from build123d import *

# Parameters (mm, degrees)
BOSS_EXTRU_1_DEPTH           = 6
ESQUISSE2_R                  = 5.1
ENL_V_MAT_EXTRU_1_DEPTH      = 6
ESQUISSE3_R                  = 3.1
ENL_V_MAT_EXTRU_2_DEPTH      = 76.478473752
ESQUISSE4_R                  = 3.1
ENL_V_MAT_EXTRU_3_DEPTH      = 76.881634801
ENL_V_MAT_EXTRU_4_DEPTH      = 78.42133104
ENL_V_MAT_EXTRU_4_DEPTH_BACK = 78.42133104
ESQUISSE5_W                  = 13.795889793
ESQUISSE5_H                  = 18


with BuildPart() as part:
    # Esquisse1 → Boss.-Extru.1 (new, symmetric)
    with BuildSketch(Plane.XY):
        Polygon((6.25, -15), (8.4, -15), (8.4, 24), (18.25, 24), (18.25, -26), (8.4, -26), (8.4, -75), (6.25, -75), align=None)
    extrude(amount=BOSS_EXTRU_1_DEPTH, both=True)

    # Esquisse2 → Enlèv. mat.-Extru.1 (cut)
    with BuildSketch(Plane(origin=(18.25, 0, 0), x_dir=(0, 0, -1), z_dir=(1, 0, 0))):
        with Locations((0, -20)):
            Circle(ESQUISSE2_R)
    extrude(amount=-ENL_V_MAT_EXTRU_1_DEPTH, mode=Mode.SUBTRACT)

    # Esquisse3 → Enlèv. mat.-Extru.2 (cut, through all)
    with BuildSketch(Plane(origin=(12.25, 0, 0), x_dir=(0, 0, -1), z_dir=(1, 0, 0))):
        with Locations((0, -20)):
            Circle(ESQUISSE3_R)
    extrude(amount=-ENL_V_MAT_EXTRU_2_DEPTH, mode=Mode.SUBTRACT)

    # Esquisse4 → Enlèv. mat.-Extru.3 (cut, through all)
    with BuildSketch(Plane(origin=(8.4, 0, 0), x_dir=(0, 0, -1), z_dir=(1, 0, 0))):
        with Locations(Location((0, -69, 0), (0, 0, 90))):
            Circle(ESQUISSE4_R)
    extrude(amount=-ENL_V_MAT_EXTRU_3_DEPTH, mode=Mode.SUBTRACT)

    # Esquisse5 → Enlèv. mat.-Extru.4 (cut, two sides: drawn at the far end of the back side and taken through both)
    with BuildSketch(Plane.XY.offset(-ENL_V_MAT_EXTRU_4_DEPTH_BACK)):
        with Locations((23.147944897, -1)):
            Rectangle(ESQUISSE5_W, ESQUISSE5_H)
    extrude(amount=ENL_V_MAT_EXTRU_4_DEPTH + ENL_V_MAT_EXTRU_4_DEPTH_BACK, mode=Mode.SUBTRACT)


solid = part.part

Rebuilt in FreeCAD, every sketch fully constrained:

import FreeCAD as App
import Part
import Sketcher
from FreeCAD import Vector


def add_polygon(sketch, points):
    """Adds a closed chain of lines whose ends are joined by coincident constraints."""
    first, n = sketch.GeometryCount, len(points)
    for a, b in zip(points, points[1:] + points[:1]):
        sketch.addGeometry(Part.LineSegment(App.Vector(*a, 0), App.Vector(*b, 0)), False)
    for i in range(n):
        sketch.addConstraint(Sketcher.Constraint("Coincident", first + i, 2, first + (i + 1) % n, 1))

doc = App.newDocument("Part")
body = doc.addObject("PartDesign::Body", "Body")

sketch1 = body.newObject("Sketcher::SketchObject", "Sketch")
sketch1.AttachmentSupport = (doc.getObject("XY_Plane"), [""])
sketch1.MapMode = "FlatFace"
add_polygon(sketch1, [(8.4, -15), (6.2, -15), (6.2, -75), (8.4, -75), (8.4, -26), (18.2, -26), (18.2, 24), (8.4, 24)])
sketch1.addConstraint([
    Sketcher.Constraint("Horizontal", 0),
    Sketcher.Constraint("Vertical", 1),
    Sketcher.Constraint("Horizontal", 2),
    Sketcher.Constraint("Vertical", 3),
    Sketcher.Constraint("Horizontal", 4),
    Sketcher.Constraint("Vertical", 5),
    Sketcher.Constraint("Horizontal", 6),
    Sketcher.Constraint("Vertical", 7),
    Sketcher.Constraint("Vertical", 3, 2, 6, 2),
    Sketcher.Constraint("DistanceY", 1, 2, 1, 1, 60.0),
    Sketcher.Constraint("DistanceY", 3, 1, 3, 2, 49.0),
    Sketcher.Constraint("DistanceY", 5, 1, 5, 2, 50.0),
    Sketcher.Constraint("DistanceY", 0, 2, -1, 1, 15.0),
    Sketcher.Constraint("DistanceX", 0, 2, 4, 2, 12.0),
    Sketcher.Constraint("DistanceX", 0, 2, 0, 1, 2.15),
    Sketcher.Constraint("DistanceX", -1, 1, 2, 2, 8.4),
])
pad1 = body.newObject("PartDesign::Pad", "Pad")
pad1.Profile = sketch1
pad1.Length = 12
pad1.Midplane = True

sketch2 = body.newObject("Sketcher::SketchObject", "Sketch001")
sketch2.AttachmentSupport = (doc.getObject("YZ_Plane"), [""])
sketch2.MapMode = "FlatFace"
sketch2.AttachmentOffset = App.Placement(Vector(0, 0, 18.25), App.Rotation())
sketch2.addGeometry(Part.Circle(Vector(-20, 0, 0), Vector(0, 0, 1), 5), False)
sketch2.addConstraint([
    Sketcher.Constraint("PointOnObject", 0, 3, -1),
    Sketcher.Constraint("Diameter", 0, 10.2),
    Sketcher.Constraint("DistanceX", 0, 3, -1, 1, 20.0),
])
pocket1 = body.newObject("PartDesign::Pocket", "Pocket")
pocket1.Profile = sketch2
pocket1.Length = 6

sketch3 = body.newObject("Sketcher::SketchObject", "Sketch002")
sketch3.AttachmentSupport = (doc.getObject("YZ_Plane"), [""])
sketch3.MapMode = "FlatFace"
sketch3.AttachmentOffset = App.Placement(Vector(0, 0, 12.25), App.Rotation())
sketch3.addGeometry(Part.Circle(Vector(-20, 0, 0), Vector(0, 0, 1), 3.1), False)
sketch3.addConstraint([
    Sketcher.Constraint("PointOnObject", 0, 3, -1),
    Sketcher.Constraint("Diameter", 0, 6.2),
    Sketcher.Constraint("DistanceX", 0, 3, -1, 1, 20.0),
])
pocket2 = body.newObject("PartDesign::Pocket", "Pocket001")
pocket2.Profile = sketch3
pocket2.Type = "ThroughAll"

sketch4 = body.newObject("Sketcher::SketchObject", "Sketch003")
sketch4.AttachmentSupport = (doc.getObject("YZ_Plane"), [""])
sketch4.MapMode = "FlatFace"
sketch4.AttachmentOffset = App.Placement(Vector(0, 0, 8.4), App.Rotation())
sketch4.addGeometry(Part.Circle(Vector(-69, 0, 0), Vector(0, 0, 1), 3.1), False)
sketch4.addConstraint([
    Sketcher.Constraint("PointOnObject", 0, 3, -1),
    Sketcher.Constraint("Diameter", 0, 6.2),
    Sketcher.Constraint("DistanceX", 0, 3, -1, 1, 69.0),
])
pocket3 = body.newObject("PartDesign::Pocket", "Pocket002")
pocket3.Profile = sketch4
pocket3.Type = "ThroughAll"

sketch5 = body.newObject("Sketcher::SketchObject", "Sketch004")
sketch5.AttachmentSupport = (doc.getObject("XY_Plane"), [""])
sketch5.MapMode = "FlatFace"
add_polygon(sketch5, [(16, 8), (16, -10), (30, -10), (30, 8)])
sketch5.addConstraint([
    Sketcher.Constraint("Vertical", 0),
    Sketcher.Constraint("Horizontal", 1),
    Sketcher.Constraint("Vertical", 2),
    Sketcher.Constraint("Horizontal", 3),
    Sketcher.Constraint("DistanceY", 0, 2, 0, 1, 18.0),
    Sketcher.Constraint("DistanceY", 0, 2, -1, 1, 10.0),
    Sketcher.Constraint("DistanceX", -1, 1, 0, 2, 16.25),
    Sketcher.Constraint("DistanceX", 1, 1, 1, 2, 13.79589),
])
pocket4 = body.newObject("PartDesign::Pocket", "Pocket003")
pocket4.Profile = sketch5
pocket4.Type = "ThroughAll"
pocket4.Midplane = True

doc.recompute()
